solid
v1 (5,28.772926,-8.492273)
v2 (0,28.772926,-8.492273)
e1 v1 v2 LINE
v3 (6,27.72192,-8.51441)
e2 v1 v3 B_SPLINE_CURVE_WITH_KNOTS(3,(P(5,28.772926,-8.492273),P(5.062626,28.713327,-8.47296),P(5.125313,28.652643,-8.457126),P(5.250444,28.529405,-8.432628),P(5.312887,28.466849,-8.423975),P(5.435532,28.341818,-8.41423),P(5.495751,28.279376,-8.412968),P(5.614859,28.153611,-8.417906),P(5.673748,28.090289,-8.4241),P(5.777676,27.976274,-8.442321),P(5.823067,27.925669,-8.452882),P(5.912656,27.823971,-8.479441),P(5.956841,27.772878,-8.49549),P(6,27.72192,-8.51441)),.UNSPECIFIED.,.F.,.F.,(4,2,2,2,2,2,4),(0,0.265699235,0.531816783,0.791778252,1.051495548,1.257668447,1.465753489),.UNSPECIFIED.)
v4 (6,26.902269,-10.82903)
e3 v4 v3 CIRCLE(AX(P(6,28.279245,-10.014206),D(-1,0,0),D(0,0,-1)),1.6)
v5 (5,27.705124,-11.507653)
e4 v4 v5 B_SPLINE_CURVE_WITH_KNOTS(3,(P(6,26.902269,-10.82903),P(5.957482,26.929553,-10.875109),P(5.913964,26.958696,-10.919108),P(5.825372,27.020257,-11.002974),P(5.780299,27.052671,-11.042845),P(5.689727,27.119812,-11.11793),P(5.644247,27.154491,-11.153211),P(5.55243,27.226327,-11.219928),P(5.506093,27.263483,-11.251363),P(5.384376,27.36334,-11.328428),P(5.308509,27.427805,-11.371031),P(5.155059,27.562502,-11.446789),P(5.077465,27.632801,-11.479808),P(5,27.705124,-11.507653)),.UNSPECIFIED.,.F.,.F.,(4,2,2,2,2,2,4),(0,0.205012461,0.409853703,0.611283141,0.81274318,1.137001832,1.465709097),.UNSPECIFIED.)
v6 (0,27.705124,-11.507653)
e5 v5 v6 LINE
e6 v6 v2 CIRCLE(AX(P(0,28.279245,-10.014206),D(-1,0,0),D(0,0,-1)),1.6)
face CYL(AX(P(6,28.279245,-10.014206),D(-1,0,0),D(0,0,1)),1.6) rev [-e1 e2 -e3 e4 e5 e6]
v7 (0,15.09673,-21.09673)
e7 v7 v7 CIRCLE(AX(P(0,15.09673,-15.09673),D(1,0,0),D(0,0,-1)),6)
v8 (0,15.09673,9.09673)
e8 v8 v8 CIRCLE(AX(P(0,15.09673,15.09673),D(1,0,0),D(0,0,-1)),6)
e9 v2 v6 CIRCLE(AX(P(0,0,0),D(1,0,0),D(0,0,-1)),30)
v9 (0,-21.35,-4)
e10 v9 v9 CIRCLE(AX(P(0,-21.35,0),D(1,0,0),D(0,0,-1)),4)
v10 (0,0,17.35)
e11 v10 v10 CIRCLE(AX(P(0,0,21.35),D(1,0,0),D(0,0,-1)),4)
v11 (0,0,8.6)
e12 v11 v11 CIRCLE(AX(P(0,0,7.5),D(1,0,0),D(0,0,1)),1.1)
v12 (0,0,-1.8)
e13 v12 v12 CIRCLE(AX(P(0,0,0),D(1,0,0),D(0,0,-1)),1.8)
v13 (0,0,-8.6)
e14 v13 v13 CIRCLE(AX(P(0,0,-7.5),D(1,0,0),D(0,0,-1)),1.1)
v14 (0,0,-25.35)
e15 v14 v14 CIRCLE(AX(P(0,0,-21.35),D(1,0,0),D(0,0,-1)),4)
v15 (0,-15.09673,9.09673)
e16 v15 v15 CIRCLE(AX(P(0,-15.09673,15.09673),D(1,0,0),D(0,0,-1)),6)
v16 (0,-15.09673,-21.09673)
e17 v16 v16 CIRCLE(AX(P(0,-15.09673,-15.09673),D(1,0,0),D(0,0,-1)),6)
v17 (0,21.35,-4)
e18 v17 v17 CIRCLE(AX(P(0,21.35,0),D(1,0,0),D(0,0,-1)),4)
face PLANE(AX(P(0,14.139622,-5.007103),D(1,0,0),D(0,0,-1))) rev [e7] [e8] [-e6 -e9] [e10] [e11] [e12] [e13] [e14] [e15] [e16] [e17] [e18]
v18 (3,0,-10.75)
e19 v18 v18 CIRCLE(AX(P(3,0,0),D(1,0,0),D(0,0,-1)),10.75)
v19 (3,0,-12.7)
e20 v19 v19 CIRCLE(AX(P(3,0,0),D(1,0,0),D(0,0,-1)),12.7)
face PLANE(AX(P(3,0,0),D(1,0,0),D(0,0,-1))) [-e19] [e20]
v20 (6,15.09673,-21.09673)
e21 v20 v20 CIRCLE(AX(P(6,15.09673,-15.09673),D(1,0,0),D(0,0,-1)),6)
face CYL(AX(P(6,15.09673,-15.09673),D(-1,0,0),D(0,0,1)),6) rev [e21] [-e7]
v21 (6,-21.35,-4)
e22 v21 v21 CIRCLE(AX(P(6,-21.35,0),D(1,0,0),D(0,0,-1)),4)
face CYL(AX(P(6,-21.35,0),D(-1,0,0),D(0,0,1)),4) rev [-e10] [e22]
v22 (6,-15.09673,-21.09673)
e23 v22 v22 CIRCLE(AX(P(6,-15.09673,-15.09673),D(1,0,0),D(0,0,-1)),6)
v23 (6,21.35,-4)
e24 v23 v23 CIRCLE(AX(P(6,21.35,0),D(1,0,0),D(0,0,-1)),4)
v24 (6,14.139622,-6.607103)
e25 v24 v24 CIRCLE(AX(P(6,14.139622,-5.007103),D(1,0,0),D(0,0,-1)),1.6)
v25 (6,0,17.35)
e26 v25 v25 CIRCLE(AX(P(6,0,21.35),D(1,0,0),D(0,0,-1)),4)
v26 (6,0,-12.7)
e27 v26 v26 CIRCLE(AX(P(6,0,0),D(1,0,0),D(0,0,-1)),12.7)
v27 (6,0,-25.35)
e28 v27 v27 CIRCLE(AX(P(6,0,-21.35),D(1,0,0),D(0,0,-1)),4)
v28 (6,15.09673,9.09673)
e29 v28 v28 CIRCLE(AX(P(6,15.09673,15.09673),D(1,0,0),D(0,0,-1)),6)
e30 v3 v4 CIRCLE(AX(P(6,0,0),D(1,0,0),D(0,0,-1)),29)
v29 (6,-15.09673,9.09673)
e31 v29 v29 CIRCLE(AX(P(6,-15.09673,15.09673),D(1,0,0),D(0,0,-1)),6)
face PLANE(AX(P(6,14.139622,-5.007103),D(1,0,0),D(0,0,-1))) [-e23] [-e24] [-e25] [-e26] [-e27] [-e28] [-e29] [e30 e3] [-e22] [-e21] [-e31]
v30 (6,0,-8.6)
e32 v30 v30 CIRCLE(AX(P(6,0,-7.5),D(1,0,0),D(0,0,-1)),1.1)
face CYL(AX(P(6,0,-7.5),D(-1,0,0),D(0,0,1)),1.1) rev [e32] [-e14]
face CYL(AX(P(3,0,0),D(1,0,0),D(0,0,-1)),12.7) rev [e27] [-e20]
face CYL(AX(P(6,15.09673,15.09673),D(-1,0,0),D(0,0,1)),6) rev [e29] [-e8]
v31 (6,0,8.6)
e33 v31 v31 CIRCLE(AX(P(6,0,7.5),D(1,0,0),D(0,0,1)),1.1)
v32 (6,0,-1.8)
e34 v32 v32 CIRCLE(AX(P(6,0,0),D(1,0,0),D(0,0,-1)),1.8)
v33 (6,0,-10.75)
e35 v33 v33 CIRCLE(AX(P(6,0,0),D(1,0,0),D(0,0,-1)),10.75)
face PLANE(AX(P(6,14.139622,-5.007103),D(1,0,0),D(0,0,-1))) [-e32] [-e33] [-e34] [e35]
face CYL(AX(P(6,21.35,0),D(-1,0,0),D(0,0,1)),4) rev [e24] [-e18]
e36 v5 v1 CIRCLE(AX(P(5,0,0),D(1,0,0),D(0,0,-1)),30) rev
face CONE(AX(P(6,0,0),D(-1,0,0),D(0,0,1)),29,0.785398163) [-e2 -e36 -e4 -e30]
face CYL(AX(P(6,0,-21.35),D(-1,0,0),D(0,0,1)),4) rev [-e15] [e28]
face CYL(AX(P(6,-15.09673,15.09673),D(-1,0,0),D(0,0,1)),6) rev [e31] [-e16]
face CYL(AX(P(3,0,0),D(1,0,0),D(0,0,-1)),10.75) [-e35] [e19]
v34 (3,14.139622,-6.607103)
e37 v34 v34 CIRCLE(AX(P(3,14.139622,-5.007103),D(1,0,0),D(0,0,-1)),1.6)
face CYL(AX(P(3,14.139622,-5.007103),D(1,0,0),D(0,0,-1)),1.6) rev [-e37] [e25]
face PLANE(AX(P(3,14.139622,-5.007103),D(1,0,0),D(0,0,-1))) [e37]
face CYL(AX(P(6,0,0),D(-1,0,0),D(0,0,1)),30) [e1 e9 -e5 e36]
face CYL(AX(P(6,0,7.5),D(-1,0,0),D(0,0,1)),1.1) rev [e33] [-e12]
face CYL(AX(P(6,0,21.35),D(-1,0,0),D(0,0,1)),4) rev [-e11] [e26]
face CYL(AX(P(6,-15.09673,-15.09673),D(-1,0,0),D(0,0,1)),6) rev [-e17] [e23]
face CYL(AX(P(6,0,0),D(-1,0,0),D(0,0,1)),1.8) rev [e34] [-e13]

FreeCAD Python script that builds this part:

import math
import FreeCAD as App
import Part
import Sketcher
Q = App.Units.Quantity


def edges_at(feature, points):
    """Names of the edges that pass closest to the given points."""
    edges = feature.Shape.Edges
    near = lambda p: min(range(len(edges)), key=lambda i: edges[i].distToShape(Part.Vertex(*p))[0])
    return sorted({f"Edge{near(p) + 1}" for p in points})

doc = App.newDocument("Part")
body = doc.addObject("PartDesign::Body", "Body")

# Sketch on YZ plane
sketch1 = body.newObject("Sketcher::SketchObject", "Sketch")
sketch1.AttachmentSupport = (doc.getObject("YZ_Plane"), [""])
sketch1.MapMode = "FlatFace"
sketch1.addGeometry([
    Part.ArcOfCircle(Part.Circle(App.Vector(0, 0, 0), App.Vector(0, 0, 1), 30), math.radians(-16), math.radians(337)),  # 0
    Part.ArcOfCircle(Part.Circle(App.Vector(28.3, -10, 0), App.Vector(0, 0, 1), 1.6), math.radians(72), math.radians(249)),  # 1
    Part.Circle(App.Vector(-15.1, 15.1, 0), App.Vector(0, 0, 1), 6),  # 2
    Part.Circle(App.Vector(-21.4, 0, 0), App.Vector(0, 0, 1), 4),  # 3
    Part.Circle(App.Vector(-15.1, -15.1, 0), App.Vector(0, 0, 1), 6),  # 4
    Part.Circle(App.Vector(0, 21.4, 0), App.Vector(0, 0, 1), 4),  # 5
    Part.Circle(App.Vector(0, 7.5, 0), App.Vector(0, 0, 1), 1.1),  # 6
    Part.Circle(App.Vector(15.1, 15.1, 0), App.Vector(0, 0, 1), 6),  # 7
    Part.Circle(App.Vector(0, 0, 0), App.Vector(0, 0, 1), 1.8),  # 8
    Part.Circle(App.Vector(0, -7.5, 0), App.Vector(0, 0, 1), 1.1),  # 9
    Part.Circle(App.Vector(0, -21.4, 0), App.Vector(0, 0, 1), 4),  # 10
    Part.Circle(App.Vector(21.4, 0, 0), App.Vector(0, 0, 1), 4),  # 11
    Part.Circle(App.Vector(15.1, -15.1, 0), App.Vector(0, 0, 1), 6),  # 12
], False)
sketch1.addConstraint([
    Sketcher.Constraint("Coincident", 0, 1, 1, 1),
    Sketcher.Constraint("Coincident", 1, 2, 0, 2),
    Sketcher.Constraint("Coincident", 0, 3, -1, 1),
    Sketcher.Constraint("Coincident", 8, 3, -1, 1),
    Sketcher.Constraint("Equal", 2, 4),
    Sketcher.Constraint("Equal", 3, 5),
    Sketcher.Constraint("Equal", 4, 7),
    Sketcher.Constraint("Equal", 6, 9),
    Sketcher.Constraint("Equal", 5, 10),
    Sketcher.Constraint("Equal", 10, 11),
    Sketcher.Constraint("Equal", 7, 12),
    Sketcher.Constraint("Symmetric", 4, 3, 7, 3, -1, 1),
    Sketcher.Constraint("Symmetric", 6, 3, 9, 3, -1, 1),
    Sketcher.Constraint("Symmetric", 5, 3, 10, 3, -1, 1),
    Sketcher.Constraint("Symmetric", 3, 3, 11, 3, -1, 1),
    Sketcher.Constraint("Symmetric", 2, 3, 12, 3, -1, 1),
    Sketcher.Constraint("Symmetric", 2, 3, 7, 3, -2),
    Sketcher.Constraint("PointOnObject", 3, 3, -1),
    Sketcher.Constraint("PointOnObject", 5, 3, -2),
    Sketcher.Constraint("PointOnObject", 6, 3, -2),
    Sketcher.Constraint("Diameter", 2, Q("12 mm")),
    Sketcher.Constraint("Diameter", 3, Q("8 mm")),
    Sketcher.Constraint("Radius", 0, Q("30 mm")),
    Sketcher.Constraint("Diameter", 6, Q("2.2 mm")),
    Sketcher.Constraint("Diameter", 8, Q("3.6 mm")),
    Sketcher.Constraint("Radius", 1, Q("1.6 mm")),
    Sketcher.Constraint("DistanceY", 9, 3, 6, 3, Q("15 mm")),
    Sketcher.Constraint("DistanceX", 3, 3, -1, 1, Q("21.35 mm")),
    Sketcher.Constraint("DistanceY", -1, 1, 5, 3, Q("21.35 mm")),
    Sketcher.Constraint("DistanceX", 2, 3, -1, 1, Q("15.09673 mm")),
    Sketcher.Constraint("DistanceY", -1, 1, 2, 3, Q("15.09673 mm")),
    Sketcher.Constraint("DistanceX", 1, 3, 0, 1, Q("0.493682 mm")),
    Sketcher.Constraint("DistanceX", 1, 2, 1, 3, Q("0.57412 mm")),
])
pad1 = body.newObject("PartDesign::Pad", "Pad")
pad1.Profile = sketch1
pad1.Length = 6

# Sketch on YZ plane
sketch2 = body.newObject("Sketcher::SketchObject", "Sketch001")
sketch2.AttachmentSupport = (doc.getObject("YZ_Plane"), [""])
sketch2.MapMode = "FlatFace"
sketch2.AttachmentOffset = App.Placement(App.Vector(0, 0, 6), App.Rotation())
sketch2.addGeometry([
    Part.Circle(App.Vector(0, 0, 0), App.Vector(0, 0, 1), 12.7),
    Part.Circle(App.Vector(0, 0, 0), App.Vector(0, 0, 1), 10.8),
    Part.Circle(App.Vector(14.1, -5, 0), App.Vector(0, 0, 1), 1.6),
], False)
sketch2.addConstraint([
    Sketcher.Constraint("Coincident", 0, 3, -1, 1),
    Sketcher.Constraint("Coincident", 1, 3, -1, 1),
    Sketcher.Constraint("Diameter", 0, Q("25.4 mm")),
    Sketcher.Constraint("Diameter", 1, Q("21.5 mm")),
    Sketcher.Constraint("Diameter", 2, Q("3.2 mm")),
    Sketcher.Constraint("DistanceX", -1, 1, 2, 3, Q("14.139622 mm")),
    Sketcher.Constraint("DistanceY", 2, 3, -1, 1, Q("5.007103 mm")),
])
pocket1 = body.newObject("PartDesign::Pocket", "Pocket")
pocket1.Profile = sketch2
pocket1.Length = 3
doc.recompute()

chamfer = body.newObject("PartDesign::Chamfer", "Chamfer")
chamfer.Base = (pocket1, edges_at(pocket1, [(6, -28.279, 10.014)]))
chamfer.Size = 1

doc.recompute()
